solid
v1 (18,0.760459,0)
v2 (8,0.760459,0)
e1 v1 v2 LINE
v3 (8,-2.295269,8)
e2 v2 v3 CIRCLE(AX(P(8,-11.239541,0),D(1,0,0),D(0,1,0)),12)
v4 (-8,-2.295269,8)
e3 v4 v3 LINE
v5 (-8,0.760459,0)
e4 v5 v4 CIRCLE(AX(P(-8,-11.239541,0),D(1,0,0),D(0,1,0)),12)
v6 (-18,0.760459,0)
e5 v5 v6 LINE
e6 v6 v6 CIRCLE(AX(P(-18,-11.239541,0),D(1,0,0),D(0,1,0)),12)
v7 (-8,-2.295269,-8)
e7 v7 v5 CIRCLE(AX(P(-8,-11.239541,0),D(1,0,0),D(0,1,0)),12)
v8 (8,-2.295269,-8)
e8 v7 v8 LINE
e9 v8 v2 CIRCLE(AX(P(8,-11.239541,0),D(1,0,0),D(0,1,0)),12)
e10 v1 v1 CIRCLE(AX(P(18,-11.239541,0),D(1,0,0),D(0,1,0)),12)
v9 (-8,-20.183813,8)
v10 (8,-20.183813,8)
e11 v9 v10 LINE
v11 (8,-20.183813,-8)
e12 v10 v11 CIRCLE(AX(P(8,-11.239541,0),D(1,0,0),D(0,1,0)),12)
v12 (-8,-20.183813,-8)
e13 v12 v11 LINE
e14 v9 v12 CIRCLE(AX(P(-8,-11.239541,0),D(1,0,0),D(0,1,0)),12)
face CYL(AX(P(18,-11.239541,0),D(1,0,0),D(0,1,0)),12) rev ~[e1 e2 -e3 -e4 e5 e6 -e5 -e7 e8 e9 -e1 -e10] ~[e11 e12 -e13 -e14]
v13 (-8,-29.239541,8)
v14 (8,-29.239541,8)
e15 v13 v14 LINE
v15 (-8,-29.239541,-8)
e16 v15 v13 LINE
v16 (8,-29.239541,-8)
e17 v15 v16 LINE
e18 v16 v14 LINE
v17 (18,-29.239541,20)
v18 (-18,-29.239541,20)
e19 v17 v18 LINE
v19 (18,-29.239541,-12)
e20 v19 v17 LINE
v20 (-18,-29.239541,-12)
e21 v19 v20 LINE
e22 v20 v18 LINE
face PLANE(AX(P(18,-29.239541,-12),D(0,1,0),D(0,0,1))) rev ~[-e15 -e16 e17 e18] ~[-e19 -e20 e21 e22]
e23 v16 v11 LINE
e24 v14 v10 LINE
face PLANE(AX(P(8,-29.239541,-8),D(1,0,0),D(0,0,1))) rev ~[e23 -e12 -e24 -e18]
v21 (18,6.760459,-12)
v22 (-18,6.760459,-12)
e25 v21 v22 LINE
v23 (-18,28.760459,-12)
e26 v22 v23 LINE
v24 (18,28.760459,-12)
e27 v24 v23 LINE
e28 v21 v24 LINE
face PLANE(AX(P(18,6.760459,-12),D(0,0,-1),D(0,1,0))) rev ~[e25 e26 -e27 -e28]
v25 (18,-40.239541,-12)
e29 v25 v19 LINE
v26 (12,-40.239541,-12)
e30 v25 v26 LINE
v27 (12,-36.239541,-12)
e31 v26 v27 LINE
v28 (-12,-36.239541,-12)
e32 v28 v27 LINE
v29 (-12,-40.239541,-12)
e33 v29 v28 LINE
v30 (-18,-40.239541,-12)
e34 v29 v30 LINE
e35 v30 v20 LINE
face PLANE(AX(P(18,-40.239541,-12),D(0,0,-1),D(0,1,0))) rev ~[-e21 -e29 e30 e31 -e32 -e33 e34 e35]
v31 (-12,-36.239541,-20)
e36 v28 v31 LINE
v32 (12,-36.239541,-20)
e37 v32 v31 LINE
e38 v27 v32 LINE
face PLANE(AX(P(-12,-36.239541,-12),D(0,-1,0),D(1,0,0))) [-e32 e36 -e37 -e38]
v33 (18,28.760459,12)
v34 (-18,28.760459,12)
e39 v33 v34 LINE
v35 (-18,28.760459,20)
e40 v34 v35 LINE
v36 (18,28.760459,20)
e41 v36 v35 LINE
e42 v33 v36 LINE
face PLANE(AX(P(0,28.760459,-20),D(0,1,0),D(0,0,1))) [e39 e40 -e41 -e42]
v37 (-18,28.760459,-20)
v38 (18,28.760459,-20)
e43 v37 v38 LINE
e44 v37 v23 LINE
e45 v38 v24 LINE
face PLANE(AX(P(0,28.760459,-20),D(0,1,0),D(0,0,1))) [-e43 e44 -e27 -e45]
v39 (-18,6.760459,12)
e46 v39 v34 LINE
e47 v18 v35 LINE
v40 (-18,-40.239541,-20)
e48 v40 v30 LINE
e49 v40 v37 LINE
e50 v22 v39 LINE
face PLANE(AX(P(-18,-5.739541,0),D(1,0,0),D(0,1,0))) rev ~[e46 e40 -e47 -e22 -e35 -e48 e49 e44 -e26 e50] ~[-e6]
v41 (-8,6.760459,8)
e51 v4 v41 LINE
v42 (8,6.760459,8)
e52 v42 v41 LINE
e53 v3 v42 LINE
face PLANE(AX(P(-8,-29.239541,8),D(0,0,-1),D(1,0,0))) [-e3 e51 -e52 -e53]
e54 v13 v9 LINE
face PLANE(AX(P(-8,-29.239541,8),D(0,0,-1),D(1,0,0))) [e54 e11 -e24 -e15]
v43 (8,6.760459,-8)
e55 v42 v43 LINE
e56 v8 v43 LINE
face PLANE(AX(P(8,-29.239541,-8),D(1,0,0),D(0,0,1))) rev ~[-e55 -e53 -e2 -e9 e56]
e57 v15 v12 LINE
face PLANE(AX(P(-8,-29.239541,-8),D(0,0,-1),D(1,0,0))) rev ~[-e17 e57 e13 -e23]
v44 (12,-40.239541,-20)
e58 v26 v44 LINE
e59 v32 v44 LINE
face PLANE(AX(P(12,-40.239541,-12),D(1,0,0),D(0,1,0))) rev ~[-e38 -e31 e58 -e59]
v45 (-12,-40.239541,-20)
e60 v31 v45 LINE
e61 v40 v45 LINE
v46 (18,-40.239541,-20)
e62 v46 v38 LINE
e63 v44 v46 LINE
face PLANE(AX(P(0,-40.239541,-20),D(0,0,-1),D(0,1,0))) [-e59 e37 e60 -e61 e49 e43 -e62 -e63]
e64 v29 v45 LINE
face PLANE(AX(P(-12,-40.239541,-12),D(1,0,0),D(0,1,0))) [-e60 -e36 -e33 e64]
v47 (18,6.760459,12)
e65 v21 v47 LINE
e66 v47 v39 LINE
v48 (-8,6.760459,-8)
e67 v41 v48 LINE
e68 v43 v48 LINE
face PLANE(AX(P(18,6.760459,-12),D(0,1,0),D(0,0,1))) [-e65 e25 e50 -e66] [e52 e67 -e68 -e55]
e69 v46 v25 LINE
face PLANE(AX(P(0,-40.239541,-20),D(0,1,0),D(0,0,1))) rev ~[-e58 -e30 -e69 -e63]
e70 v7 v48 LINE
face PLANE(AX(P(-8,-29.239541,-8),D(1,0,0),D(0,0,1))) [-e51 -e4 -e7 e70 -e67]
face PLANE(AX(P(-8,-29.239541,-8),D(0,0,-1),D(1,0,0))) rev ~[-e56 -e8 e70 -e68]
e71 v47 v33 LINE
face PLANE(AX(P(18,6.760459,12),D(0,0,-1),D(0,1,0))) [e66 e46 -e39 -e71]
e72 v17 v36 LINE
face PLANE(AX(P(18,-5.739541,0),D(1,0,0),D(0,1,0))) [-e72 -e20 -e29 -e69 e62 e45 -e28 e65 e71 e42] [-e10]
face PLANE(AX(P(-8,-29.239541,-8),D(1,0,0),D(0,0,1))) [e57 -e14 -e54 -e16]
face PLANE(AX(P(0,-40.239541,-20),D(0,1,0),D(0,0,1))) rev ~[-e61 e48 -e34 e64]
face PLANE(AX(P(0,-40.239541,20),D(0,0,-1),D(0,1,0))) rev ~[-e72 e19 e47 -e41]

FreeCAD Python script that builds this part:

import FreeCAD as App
import Part
import Sketcher
from FreeCAD import Vector


def add_polygon(sketch, points):
    """Adds a closed chain of lines whose ends are joined by coincident constraints."""
    first, n = sketch.GeometryCount, len(points)
    for a, b in zip(points, points[1:] + points[:1]):
        sketch.addGeometry(Part.LineSegment(App.Vector(*a, 0), App.Vector(*b, 0)), False)
    for i in range(n):
        sketch.addConstraint(Sketcher.Constraint("Coincident", first + i, 2, first + (i + 1) % n, 1))

doc = App.newDocument("Part")
body = doc.addObject("PartDesign::Body", "Body")

# Sketch on YZ plane
sketch1 = doc.addObject("Sketcher::SketchObject", "Sketch")
body.addObject(sketch1)
sketch1.AttachmentSupport = (doc.YZ_Plane, [""])
sketch1.MapMode = "FlatFace"
add_polygon(sketch1, [(-40, 20), (-40, -20), (29, -20), (29, 20)])  # lines 0-3
sketch1.addConstraint(Sketcher.Constraint("Vertical", 0))
sketch1.addConstraint(Sketcher.Constraint("Horizontal", 1))
sketch1.addConstraint(Sketcher.Constraint("Vertical", 2))
sketch1.addConstraint(Sketcher.Constraint("Horizontal", 3))
sketch1.addConstraint(Sketcher.Constraint("DistanceX", 1, 1, 1, 2, 69.0))
sketch1.addConstraint(Sketcher.Constraint("DistanceY", 0, 2, 0, 1, 40.0))
sketch1.addConstraint(Sketcher.Constraint("DistanceY", 0, 2, -1, 1, 20.0))
sketch1.addConstraint(Sketcher.Constraint("DistanceX", 0, 2, -1, 1, 40.239541))
pad1 = doc.addObject("PartDesign::Pad", "Pad")
body.addObject(pad1)
pad1.Profile = sketch1
pad1.Length = 36
pad1.Midplane = True

# Sketch on YZ plane
sketch2 = doc.addObject("Sketcher::SketchObject", "Sketch001")
body.addObject(sketch2)
sketch2.AttachmentSupport = (doc.YZ_Plane, [""])
sketch2.MapMode = "FlatFace"
sketch2.AttachmentOffset = App.Placement(Vector(0, 0, 18), App.Rotation())
add_polygon(sketch2, [(-40, 20), (-40, -12), (-29, -12), (-29, 20)])  # lines 0-3
sketch2.addConstraint(Sketcher.Constraint("Vertical", 0))
sketch2.addConstraint(Sketcher.Constraint("Horizontal", 1))
sketch2.addConstraint(Sketcher.Constraint("Vertical", 2))
sketch2.addConstraint(Sketcher.Constraint("Horizontal", 3))
sketch2.addConstraint(Sketcher.Constraint("DistanceX", 1, 1, 1, 2, 11.0))
sketch2.addConstraint(Sketcher.Constraint("DistanceY", 0, 2, 0, 1, 32.0))
sketch2.addConstraint(Sketcher.Constraint("DistanceY", 0, 2, -1, 1, 12.0))
sketch2.addConstraint(Sketcher.Constraint("DistanceX", 0, 2, -1, 1, 40.239541))
pocket1 = doc.addObject("PartDesign::Pocket", "Pocket")
body.addObject(pocket1)
pocket1.Profile = sketch2
pocket1.Type = "ThroughAll"

# Sketch on YZ plane
sketch3 = doc.addObject("Sketcher::SketchObject", "Sketch002")
body.addObject(sketch3)
sketch3.AttachmentSupport = (doc.YZ_Plane, [""])
sketch3.MapMode = "FlatFace"
sketch3.AttachmentOffset = App.Placement(Vector(0, 0, 18), App.Rotation())
add_polygon(sketch3, [(7, 12), (7, -12), (29, -12), (29, 12)])  # lines 0-3
sketch3.addConstraint(Sketcher.Constraint("Vertical", 0))
sketch3.addConstraint(Sketcher.Constraint("Horizontal", 1))
sketch3.addConstraint(Sketcher.Constraint("Vertical", 2))
sketch3.addConstraint(Sketcher.Constraint("Horizontal", 3))
sketch3.addConstraint(Sketcher.Constraint("DistanceX", 1, 1, 1, 2, 22.0))
sketch3.addConstraint(Sketcher.Constraint("DistanceY", 0, 2, 0, 1, 24.0))
sketch3.addConstraint(Sketcher.Constraint("DistanceY", 0, 2, -1, 1, 12.0))
sketch3.addConstraint(Sketcher.Constraint("DistanceX", -1, 1, 0, 2, 6.760459))
pocket2 = doc.addObject("PartDesign::Pocket", "Pocket001")
body.addObject(pocket2)
pocket2.Profile = sketch3
pocket2.Type = "ThroughAll"

# Sketch on YZ plane
sketch4 = doc.addObject("Sketcher::SketchObject", "Sketch003")
body.addObject(sketch4)
sketch4.AttachmentSupport = (doc.YZ_Plane, [""])
sketch4.MapMode = "FlatFace"
sketch4.AttachmentOffset = App.Placement(Vector(0, 0, 18), App.Rotation())
sketch4.addGeometry(Part.Circle(Vector(-11, 0, 0), Vector(0, 0, 1), 12), False)
sketch4.addConstraint(Sketcher.Constraint("PointOnObject", 0, 3, -1))
sketch4.addConstraint(Sketcher.Constraint("Diameter", 0, 24.0))
sketch4.addConstraint(Sketcher.Constraint("DistanceX", 0, 3, -1, 1, 11.239541))
pocket3 = doc.addObject("PartDesign::Pocket", "Pocket002")
body.addObject(pocket3)
pocket3.Profile = sketch4
pocket3.Type = "ThroughAll"

# Sketch on XZ plane
sketch5 = doc.addObject("Sketcher::SketchObject", "Sketch004")
body.addObject(sketch5)
sketch5.AttachmentSupport = (doc.XZ_Plane, [""])
sketch5.MapMode = "FlatFace"
sketch5.AttachmentOffset = App.Placement(Vector(0, 0, 29.239541), App.Rotation())
add_polygon(sketch5, [(-8, 8), (-8, -8), (8, -8), (8, 8)])  # lines 0-3
sketch5.addConstraint(Sketcher.Constraint("Vertical", 0))
sketch5.addConstraint(Sketcher.Constraint("Horizontal", 1))
sketch5.addConstraint(Sketcher.Constraint("Vertical", 2))
sketch5.addConstraint(Sketcher.Constraint("Horizontal", 3))
sketch5.addConstraint(Sketcher.Constraint("Symmetric", 0, 2, 2, 2, -1, 1))
sketch5.addConstraint(Sketcher.Constraint("Equal", 3, 0))
sketch5.addConstraint(Sketcher.Constraint("DistanceX", 1, 1, 1, 2, 16.0))
pocket4 = doc.addObject("PartDesign::Pocket", "Pocket003")
body.addObject(pocket4)
pocket4.Profile = sketch5
pocket4.Type = "ThroughAll"

# Sketch on XY plane
sketch6 = doc.addObject("Sketcher::SketchObject", "Sketch005")
body.addObject(sketch6)
sketch6.AttachmentSupport = (doc.XY_Plane, [""])
sketch6.MapMode = "FlatFace"
sketch6.AttachmentOffset = App.Placement(Vector(0, 0, -12), App.Rotation())
add_polygon(sketch6, [(-12, -36.2), (-12, -40.2), (12, -40.2), (12, -36.2)])  # lines 0-3
sketch6.addConstraint(Sketcher.Constraint("Vertical", 0))
sketch6.addConstraint(Sketcher.Constraint("Horizontal", 1))
sketch6.addConstraint(Sketcher.Constraint("Vertical", 2))
sketch6.addConstraint(Sketcher.Constraint("Horizontal", 3))
sketch6.addConstraint(Sketcher.Constraint("DistanceX", 1, 1, 1, 2, 24.0))
sketch6.addConstraint(Sketcher.Constraint("DistanceY", 0, 2, 0, 1, 4.0))
sketch6.addConstraint(Sketcher.Constraint("DistanceX", 0, 2, -1, 1, 12.0))
sketch6.addConstraint(Sketcher.Constraint("DistanceY", 0, 2, -1, 1, 40.239541))
pocket5 = doc.addObject("PartDesign::Pocket", "Pocket004")
body.addObject(pocket5)
pocket5.Profile = sketch6
pocket5.Type = "ThroughAll"

doc.recompute()
